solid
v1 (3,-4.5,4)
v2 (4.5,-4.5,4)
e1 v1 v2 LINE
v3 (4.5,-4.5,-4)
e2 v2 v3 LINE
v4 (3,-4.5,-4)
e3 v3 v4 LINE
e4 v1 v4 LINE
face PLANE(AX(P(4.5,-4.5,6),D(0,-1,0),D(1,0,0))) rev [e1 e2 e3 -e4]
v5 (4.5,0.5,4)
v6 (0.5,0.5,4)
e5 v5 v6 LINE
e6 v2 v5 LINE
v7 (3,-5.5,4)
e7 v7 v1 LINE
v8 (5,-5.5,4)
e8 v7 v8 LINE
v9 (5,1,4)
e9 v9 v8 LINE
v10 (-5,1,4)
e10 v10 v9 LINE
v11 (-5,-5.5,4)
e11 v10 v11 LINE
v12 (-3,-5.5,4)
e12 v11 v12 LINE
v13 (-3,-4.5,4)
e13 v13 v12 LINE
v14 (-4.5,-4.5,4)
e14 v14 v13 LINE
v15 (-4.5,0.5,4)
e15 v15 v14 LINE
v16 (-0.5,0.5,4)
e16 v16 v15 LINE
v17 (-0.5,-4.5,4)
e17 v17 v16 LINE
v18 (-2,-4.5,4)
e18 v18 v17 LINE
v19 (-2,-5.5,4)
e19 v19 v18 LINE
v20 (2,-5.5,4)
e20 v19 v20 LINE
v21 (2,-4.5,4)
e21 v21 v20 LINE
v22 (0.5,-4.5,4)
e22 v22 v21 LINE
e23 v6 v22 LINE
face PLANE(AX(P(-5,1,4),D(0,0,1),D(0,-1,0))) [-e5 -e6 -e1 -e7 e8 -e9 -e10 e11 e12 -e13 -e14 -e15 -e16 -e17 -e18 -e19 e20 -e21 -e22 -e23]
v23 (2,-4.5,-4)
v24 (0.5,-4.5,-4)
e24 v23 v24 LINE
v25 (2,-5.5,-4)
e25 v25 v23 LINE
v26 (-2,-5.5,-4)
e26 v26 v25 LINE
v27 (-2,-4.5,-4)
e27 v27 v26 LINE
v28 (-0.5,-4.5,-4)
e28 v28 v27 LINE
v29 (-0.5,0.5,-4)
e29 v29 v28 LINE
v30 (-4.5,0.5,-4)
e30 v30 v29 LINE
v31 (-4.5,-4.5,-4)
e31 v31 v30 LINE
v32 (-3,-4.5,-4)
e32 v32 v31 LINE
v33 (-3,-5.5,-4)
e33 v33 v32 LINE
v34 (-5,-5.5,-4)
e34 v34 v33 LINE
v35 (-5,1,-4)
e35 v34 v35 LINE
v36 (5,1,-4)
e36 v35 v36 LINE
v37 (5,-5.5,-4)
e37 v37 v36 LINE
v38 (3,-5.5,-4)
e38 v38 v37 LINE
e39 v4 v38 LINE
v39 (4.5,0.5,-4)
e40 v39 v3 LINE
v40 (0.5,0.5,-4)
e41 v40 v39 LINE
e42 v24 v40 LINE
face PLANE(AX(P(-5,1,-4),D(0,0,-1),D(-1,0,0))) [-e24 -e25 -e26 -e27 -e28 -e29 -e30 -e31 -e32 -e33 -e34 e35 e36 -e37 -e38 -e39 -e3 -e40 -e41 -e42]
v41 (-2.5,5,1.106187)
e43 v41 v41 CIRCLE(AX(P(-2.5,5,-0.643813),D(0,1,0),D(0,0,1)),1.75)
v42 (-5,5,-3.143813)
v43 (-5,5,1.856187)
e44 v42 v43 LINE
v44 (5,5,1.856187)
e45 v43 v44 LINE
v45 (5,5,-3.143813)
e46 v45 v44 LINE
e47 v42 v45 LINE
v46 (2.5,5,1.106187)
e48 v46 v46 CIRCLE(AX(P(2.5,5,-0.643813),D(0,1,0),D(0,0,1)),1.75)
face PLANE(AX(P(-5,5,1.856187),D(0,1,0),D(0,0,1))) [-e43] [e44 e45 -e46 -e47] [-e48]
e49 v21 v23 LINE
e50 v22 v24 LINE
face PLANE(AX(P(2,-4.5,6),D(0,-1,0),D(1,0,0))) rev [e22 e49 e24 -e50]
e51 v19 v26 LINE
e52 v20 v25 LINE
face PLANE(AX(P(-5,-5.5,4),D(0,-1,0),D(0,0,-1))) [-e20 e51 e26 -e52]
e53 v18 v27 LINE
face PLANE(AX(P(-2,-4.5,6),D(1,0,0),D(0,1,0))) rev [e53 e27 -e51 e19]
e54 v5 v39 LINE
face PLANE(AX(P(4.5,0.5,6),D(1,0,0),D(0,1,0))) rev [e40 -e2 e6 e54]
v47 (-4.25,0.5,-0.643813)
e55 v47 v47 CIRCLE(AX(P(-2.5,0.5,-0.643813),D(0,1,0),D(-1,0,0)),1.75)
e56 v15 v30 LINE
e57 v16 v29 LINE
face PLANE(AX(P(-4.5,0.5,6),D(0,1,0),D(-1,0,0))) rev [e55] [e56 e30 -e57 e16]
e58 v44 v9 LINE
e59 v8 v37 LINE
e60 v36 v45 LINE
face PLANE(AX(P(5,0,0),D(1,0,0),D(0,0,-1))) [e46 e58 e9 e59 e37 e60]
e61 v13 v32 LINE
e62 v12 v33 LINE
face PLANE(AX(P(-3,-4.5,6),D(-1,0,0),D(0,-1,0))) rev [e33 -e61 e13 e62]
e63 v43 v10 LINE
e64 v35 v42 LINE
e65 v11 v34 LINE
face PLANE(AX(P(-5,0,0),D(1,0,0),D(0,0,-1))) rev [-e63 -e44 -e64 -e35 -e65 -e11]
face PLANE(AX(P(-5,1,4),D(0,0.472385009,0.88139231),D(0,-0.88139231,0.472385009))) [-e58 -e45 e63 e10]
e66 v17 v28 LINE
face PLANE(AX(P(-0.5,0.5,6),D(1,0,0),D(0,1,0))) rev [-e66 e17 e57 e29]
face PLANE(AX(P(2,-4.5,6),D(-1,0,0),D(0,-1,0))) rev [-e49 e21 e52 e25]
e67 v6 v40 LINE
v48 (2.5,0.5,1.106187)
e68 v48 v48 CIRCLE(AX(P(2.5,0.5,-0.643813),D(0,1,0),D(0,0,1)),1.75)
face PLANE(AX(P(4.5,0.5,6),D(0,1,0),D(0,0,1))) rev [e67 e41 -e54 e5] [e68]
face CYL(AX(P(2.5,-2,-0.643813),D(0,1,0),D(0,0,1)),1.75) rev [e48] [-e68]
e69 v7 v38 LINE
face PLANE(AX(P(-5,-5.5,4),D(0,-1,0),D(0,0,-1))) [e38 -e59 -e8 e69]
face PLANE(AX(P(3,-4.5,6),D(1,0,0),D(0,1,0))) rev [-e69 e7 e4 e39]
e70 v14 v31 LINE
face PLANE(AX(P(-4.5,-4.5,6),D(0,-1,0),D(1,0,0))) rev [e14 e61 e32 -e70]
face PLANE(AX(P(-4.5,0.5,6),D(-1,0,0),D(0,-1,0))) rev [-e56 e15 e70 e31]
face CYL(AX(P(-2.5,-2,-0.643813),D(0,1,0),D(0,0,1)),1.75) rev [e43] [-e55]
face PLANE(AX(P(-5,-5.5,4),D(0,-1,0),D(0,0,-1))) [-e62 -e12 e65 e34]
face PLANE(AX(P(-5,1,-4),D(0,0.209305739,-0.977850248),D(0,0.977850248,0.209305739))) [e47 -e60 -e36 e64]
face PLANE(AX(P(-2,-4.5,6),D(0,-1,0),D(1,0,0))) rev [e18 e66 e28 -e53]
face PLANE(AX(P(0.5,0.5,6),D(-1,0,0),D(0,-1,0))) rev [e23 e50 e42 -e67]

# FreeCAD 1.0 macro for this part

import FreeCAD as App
import Part
import Sketcher
Q = App.Units.Quantity

doc = App.newDocument("Part")
body = doc.addObject("PartDesign::Body", "Body")

# Sketch on YZ plane
sketch1 = body.newObject("Sketcher::SketchObject", "Sketch")
sketch1.AttachmentSupport = (doc.getObject("YZ_Plane"), [""])
sketch1.MapMode = "FlatFace"
sketch1.addGeometry([
    Part.LineSegment(App.Vector(5, -3.1, 0), App.Vector(5, 1.9, 0)),  # 0
    Part.LineSegment(App.Vector(5, 1.9, 0), App.Vector(1, 4, 0)),  # 1
    Part.LineSegment(App.Vector(1, 4, 0), App.Vector(-5.5, 4, 0)),  # 2
    Part.LineSegment(App.Vector(-5.5, 4, 0), App.Vector(-5.5, -4, 0)),  # 3
    Part.LineSegment(App.Vector(-5.5, -4, 0), App.Vector(1, -4, 0)),  # 4
    Part.LineSegment(App.Vector(1, -4, 0), App.Vector(5, -3.1, 0)),  # 5
], False)
sketch1.addConstraint([
    Sketcher.Constraint("Coincident", 0, 2, 1, 1),
    Sketcher.Constraint("Coincident", 1, 2, 2, 1),
    Sketcher.Constraint("Coincident", 2, 2, 3, 1),
    Sketcher.Constraint("Coincident", 3, 2, 4, 1),
    Sketcher.Constraint("Coincident", 4, 2, 5, 1),
    Sketcher.Constraint("Coincident", 5, 2, 0, 1),
    Sketcher.Constraint("Vertical", 0),
    Sketcher.Constraint("Horizontal", 2),
    Sketcher.Constraint("Vertical", 3),
    Sketcher.Constraint("Horizontal", 4),
    Sketcher.Constraint("Symmetric", 1, 2, 4, 2, -1),
    Sketcher.Constraint("DistanceY", 0, 1, 0, 2, Q("5 mm")),
    Sketcher.Constraint("DistanceY", 3, 2, 3, 1, Q("8 mm")),
    Sketcher.Constraint("DistanceX", 2, 2, 2, 1, Q("6.5 mm")),
    Sketcher.Constraint("DistanceX", -1, 1, 0, 2, Q("5 mm")),
    Sketcher.Constraint("DistanceX", -1, 1, 1, 2, Q("1 mm")),
    Sketcher.Constraint("Distance", 1, Q("4.538274 mm")),
])
pad1 = body.newObject("PartDesign::Pad", "Pad")
pad1.Profile = sketch1
pad1.Type = "TwoLengths"
pad1.Length = 5
pad1.Length2 = 5

# Sketch on XY plane
sketch2 = body.newObject("Sketcher::SketchObject", "Sketch001")
sketch2.AttachmentSupport = (doc.getObject("XY_Plane"), [""])
sketch2.MapMode = "FlatFace"
sketch2.AttachmentOffset = App.Placement(App.Vector(0, 0, -4), App.Rotation())
sketch2.addGeometry([
    Part.LineSegment(App.Vector(3, -4.5, 0), App.Vector(3, -5.5, 0)),  # 0
    Part.LineSegment(App.Vector(3, -5.5, 0), App.Vector(2, -5.5, 0)),  # 1
    Part.LineSegment(App.Vector(2, -5.5, 0), App.Vector(2, -4.5, 0)),  # 2
    Part.LineSegment(App.Vector(2, -4.5, 0), App.Vector(0.5, -4.5, 0)),  # 3
    Part.LineSegment(App.Vector(0.5, -4.5, 0), App.Vector(0.5, 0.5, 0)),  # 4
    Part.LineSegment(App.Vector(0.5, 0.5, 0), App.Vector(4.5, 0.5, 0)),  # 5
    Part.LineSegment(App.Vector(4.5, 0.5, 0), App.Vector(4.5, -4.5, 0)),  # 6
    Part.LineSegment(App.Vector(4.5, -4.5, 0), App.Vector(3, -4.5, 0)),  # 7
    Part.LineSegment(App.Vector(-2, -4.5, 0), App.Vector(-2, -5.5, 0)),  # 8
    Part.LineSegment(App.Vector(-2, -5.5, 0), App.Vector(-3, -5.5, 0)),  # 9
    Part.LineSegment(App.Vector(-3, -5.5, 0), App.Vector(-3, -4.5, 0)),  # 10
    Part.LineSegment(App.Vector(-3, -4.5, 0), App.Vector(-4.5, -4.5, 0)),  # 11
    Part.LineSegment(App.Vector(-4.5, -4.5, 0), App.Vector(-4.5, 0.5, 0)),  # 12
    Part.LineSegment(App.Vector(-4.5, 0.5, 0), App.Vector(-0.5, 0.5, 0)),  # 13
    Part.LineSegment(App.Vector(-0.5, 0.5, 0), App.Vector(-0.5, -4.5, 0)),  # 14
    Part.LineSegment(App.Vector(-0.5, -4.5, 0), App.Vector(-2, -4.5, 0)),  # 15
], False)
sketch2.addConstraint([
    Sketcher.Constraint("Coincident", 0, 2, 1, 1),
    Sketcher.Constraint("Coincident", 1, 2, 2, 1),
    Sketcher.Constraint("Coincident", 2, 2, 3, 1),
    Sketcher.Constraint("Coincident", 3, 2, 4, 1),
    Sketcher.Constraint("Coincident", 4, 2, 5, 1),
    Sketcher.Constraint("Coincident", 5, 2, 6, 1),
    Sketcher.Constraint("Coincident", 6, 2, 7, 1),
    Sketcher.Constraint("Coincident", 7, 2, 0, 1),
    Sketcher.Constraint("Coincident", 8, 2, 9, 1),
    Sketcher.Constraint("Coincident", 9, 2, 10, 1),
    Sketcher.Constraint("Coincident", 10, 2, 11, 1),
    Sketcher.Constraint("Coincident", 11, 2, 12, 1),
    Sketcher.Constraint("Coincident", 12, 2, 13, 1),
    Sketcher.Constraint("Coincident", 13, 2, 14, 1),
    Sketcher.Constraint("Coincident", 14, 2, 15, 1),
    Sketcher.Constraint("Coincident", 15, 2, 8, 1),
    Sketcher.Constraint("Vertical", 0),
    Sketcher.Constraint("Horizontal", 1),
    Sketcher.Constraint("Vertical", 2),
    Sketcher.Constraint("Horizontal", 3),
    Sketcher.Constraint("Vertical", 4),
    Sketcher.Constraint("Horizontal", 5),
    Sketcher.Constraint("Vertical", 6),
    Sketcher.Constraint("Horizontal", 7),
    Sketcher.Constraint("Vertical", 8),
    Sketcher.Constraint("Horizontal", 9),
    Sketcher.Constraint("Vertical", 10),
    Sketcher.Constraint("Horizontal", 11),
    Sketcher.Constraint("Vertical", 12),
    Sketcher.Constraint("Horizontal", 13),
    Sketcher.Constraint("Vertical", 14),
    Sketcher.Constraint("Horizontal", 15),
    Sketcher.Constraint("Symmetric", 1, 2, 8, 2, -2),
    Sketcher.Constraint("Symmetric", 7, 2, 10, 2, -2),
    Sketcher.Constraint("Symmetric", 5, 2, 12, 2, -2),
    Sketcher.Constraint("Symmetric", 3, 2, 14, 2, -2),
    Sketcher.Constraint("Horizontal", 3, 2, 6, 2),
    Sketcher.Constraint("Equal", 3, 7),
    Sketcher.Constraint("Equal", 9, 0),
    Sketcher.Constraint("DistanceX", 1, 2, 1, 1, Q("1 mm")),
    Sketcher.Constraint("DistanceX", 5, 1, 5, 2, Q("4 mm")),
    Sketcher.Constraint("DistanceY", 4, 1, 4, 2, Q("5 mm")),
    Sketcher.Constraint("DistanceX", -1, 1, 0, 2, Q("3 mm")),
    Sketcher.Constraint("DistanceY", 0, 2, -1, 1, Q("5.5 mm")),
])
pocket1 = body.newObject("PartDesign::Pocket", "Pocket")
pocket1.Profile = sketch2
pocket1.Length = 10
pocket1.Reversed = True

# Sketch on XZ plane
sketch3 = body.newObject("Sketcher::SketchObject", "Sketch002")
sketch3.AttachmentSupport = (doc.getObject("XZ_Plane"), [""])
sketch3.MapMode = "FlatFace"
sketch3.AttachmentOffset = App.Placement(App.Vector(0, 0, -5), App.Rotation())
sketch3.addGeometry([
    Part.Circle(App.Vector(-2.5, -0.6, 0), App.Vector(0, 0, 1), 1.8),
    Part.Circle(App.Vector(2.5, -0.6, 0), App.Vector(0, 0, 1), 1.8),
], False)
sketch3.addConstraint([
    Sketcher.Constraint("Equal", 0, 1),
    Sketcher.Constraint("Symmetric", 0, 3, 1, 3, -2),
    Sketcher.Constraint("Diameter", 0, Q("3.5 mm")),
    Sketcher.Constraint("DistanceX", 0, 3, 1, 3, Q("5 mm")),
    Sketcher.Constraint("DistanceY", 0, 3, -1, 1, Q("0.643813 mm")),
])
pocket2 = body.newObject("PartDesign::Pocket", "Pocket001")
pocket2.Profile = sketch3
pocket2.Length = 7
pocket2.Reversed = True

doc.recompute()
